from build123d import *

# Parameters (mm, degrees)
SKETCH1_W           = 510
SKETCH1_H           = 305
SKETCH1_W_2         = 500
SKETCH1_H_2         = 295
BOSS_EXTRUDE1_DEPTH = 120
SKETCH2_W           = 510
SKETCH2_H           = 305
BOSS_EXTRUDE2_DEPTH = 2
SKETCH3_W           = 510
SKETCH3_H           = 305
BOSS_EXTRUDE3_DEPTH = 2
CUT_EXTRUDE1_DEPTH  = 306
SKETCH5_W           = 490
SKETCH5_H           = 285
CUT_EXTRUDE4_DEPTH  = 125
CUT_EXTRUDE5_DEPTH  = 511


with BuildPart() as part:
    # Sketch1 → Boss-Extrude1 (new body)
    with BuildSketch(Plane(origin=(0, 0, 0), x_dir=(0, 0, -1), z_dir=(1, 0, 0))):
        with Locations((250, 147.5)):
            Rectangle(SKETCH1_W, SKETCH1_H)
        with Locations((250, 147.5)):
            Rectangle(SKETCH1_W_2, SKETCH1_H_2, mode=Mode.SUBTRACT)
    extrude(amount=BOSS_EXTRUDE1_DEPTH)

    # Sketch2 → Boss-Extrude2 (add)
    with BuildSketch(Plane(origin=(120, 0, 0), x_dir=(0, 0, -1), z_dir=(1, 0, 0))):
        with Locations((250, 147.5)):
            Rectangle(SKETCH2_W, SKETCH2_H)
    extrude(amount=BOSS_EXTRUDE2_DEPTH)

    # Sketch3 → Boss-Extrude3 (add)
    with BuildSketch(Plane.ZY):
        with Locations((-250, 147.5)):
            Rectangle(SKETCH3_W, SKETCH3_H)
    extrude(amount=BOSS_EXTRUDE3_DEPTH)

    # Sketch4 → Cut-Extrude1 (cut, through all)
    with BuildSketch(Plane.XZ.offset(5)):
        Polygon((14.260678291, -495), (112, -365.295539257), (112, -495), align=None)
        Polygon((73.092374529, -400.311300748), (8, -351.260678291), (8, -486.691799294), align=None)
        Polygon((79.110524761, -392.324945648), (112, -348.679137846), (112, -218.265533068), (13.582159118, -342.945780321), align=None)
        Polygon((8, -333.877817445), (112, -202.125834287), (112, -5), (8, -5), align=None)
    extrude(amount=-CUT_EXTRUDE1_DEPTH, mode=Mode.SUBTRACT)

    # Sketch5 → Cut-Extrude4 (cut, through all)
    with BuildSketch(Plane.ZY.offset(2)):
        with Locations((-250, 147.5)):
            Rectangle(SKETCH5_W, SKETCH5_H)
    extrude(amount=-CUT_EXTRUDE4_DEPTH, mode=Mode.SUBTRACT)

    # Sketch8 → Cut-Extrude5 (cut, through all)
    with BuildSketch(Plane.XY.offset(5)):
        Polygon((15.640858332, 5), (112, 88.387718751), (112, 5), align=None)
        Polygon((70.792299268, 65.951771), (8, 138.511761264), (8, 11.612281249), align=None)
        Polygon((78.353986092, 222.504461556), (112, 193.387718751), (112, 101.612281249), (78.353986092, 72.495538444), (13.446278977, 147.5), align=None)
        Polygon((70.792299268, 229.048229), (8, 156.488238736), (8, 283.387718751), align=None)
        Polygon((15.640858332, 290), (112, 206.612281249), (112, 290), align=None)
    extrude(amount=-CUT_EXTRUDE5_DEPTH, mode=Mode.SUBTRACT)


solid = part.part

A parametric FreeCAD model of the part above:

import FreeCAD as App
import Part
import Sketcher

V = App.Vector
Q = App.Units.Quantity


def add_polygon(sketch, points):
    """Adds a closed chain of lines whose ends are joined by coincident constraints."""
    first, n = sketch.GeometryCount, len(points)
    for a, b in zip(points, points[1:] + points[:1]):
        sketch.addGeometry(Part.LineSegment(App.Vector(*a, 0), App.Vector(*b, 0)), False)
    for i in range(n):
        sketch.addConstraint(Sketcher.Constraint("Coincident", first + i, 2, first + (i + 1) % n, 1))

doc = App.newDocument("Part")
body = doc.addObject("PartDesign::Body", "Body")

sketch1 = body.newObject("Sketcher::SketchObject", "Sketch")
sketch1.AttachmentSupport = (doc.getObject("YZ_Plane"), [""])
sketch1.MapMode = "FlatFace"
add_polygon(sketch1, [(300, 5), (-5, 5), (-5, -505), (300, -505)])
add_polygon(sketch1, [(0, -500), (0, 0), (295, 0), (295, -500)])
sketch1.addConstraint([
    Sketcher.Constraint("Horizontal", 0),
    Sketcher.Constraint("Vertical", 1),
    Sketcher.Constraint("Horizontal", 2),
    Sketcher.Constraint("Vertical", 3),
    Sketcher.Constraint("Vertical", 4),
    Sketcher.Constraint("Horizontal", 5),
    Sketcher.Constraint("Vertical", 6),
    Sketcher.Constraint("Horizontal", 7),
    Sketcher.Constraint("Coincident", 4, 2, -1, 1),
    Sketcher.Constraint("DistanceX", 0, 2, 0, 1, Q("305 mm")),
    Sketcher.Constraint("DistanceX", 5, 1, 5, 2, Q("295 mm")),
    Sketcher.Constraint("DistanceY", 1, 2, 1, 1, Q("510 mm")),
    Sketcher.Constraint("DistanceY", 4, 1, 4, 2, Q("500 mm")),
    Sketcher.Constraint("DistanceX", 0, 2, -1, 1, Q("5 mm")),
    Sketcher.Constraint("DistanceY", -1, 1, 0, 2, Q("5 mm")),
])
pad1 = body.newObject("PartDesign::Pad", "Pad")
pad1.Profile = sketch1
pad1.Length = 120

sketch2 = body.newObject("Sketcher::SketchObject", "Sketch001")
sketch2.AttachmentSupport = (doc.getObject("YZ_Plane"), [""])
sketch2.MapMode = "FlatFace"
sketch2.AttachmentOffset = App.Placement(V(0, 0, 120), App.Rotation())
add_polygon(sketch2, [(300, 5), (-5, 5), (-5, -505), (300, -505)])
sketch2.addConstraint([
    Sketcher.Constraint("Horizontal", 0),
    Sketcher.Constraint("Vertical", 1),
    Sketcher.Constraint("Horizontal", 2),
    Sketcher.Constraint("Vertical", 3),
    Sketcher.Constraint("DistanceX", 0, 2, 0, 1, Q("305 mm")),
    Sketcher.Constraint("DistanceY", 1, 2, 1, 1, Q("510 mm")),
    Sketcher.Constraint("DistanceX", 0, 2, -1, 1, Q("5 mm")),
    Sketcher.Constraint("DistanceY", -1, 1, 0, 2, Q("5 mm")),
])
pad2 = body.newObject("PartDesign::Pad", "Pad001")
pad2.Profile = sketch2
pad2.Length = 2

sketch3 = body.newObject("Sketcher::SketchObject", "Sketch002")
sketch3.AttachmentSupport = (doc.getObject("YZ_Plane"), [""])
sketch3.MapMode = "FlatFace"
add_polygon(sketch3, [(300, -505), (-5, -505), (-5, 5), (300, 5)])
sketch3.addConstraint([
    Sketcher.Constraint("Horizontal", 0),
    Sketcher.Constraint("Vertical", 1),
    Sketcher.Constraint("Horizontal", 2),
    Sketcher.Constraint("Vertical", 3),
    Sketcher.Constraint("DistanceX", 0, 2, 0, 1, Q("305 mm")),
    Sketcher.Constraint("DistanceY", 1, 1, 1, 2, Q("510 mm")),
    Sketcher.Constraint("DistanceX", 0, 2, -1, 1, Q("5 mm")),
    Sketcher.Constraint("DistanceY", 0, 2, -1, 1, Q("505 mm")),
])
pad3 = body.newObject("PartDesign::Pad", "Pad002")
pad3.Profile = sketch3
pad3.Length = 2
pad3.Reversed = True

sketch4 = body.newObject("Sketcher::SketchObject", "Sketch003")
sketch4.AttachmentSupport = (doc.getObject("XZ_Plane"), [""])
sketch4.MapMode = "FlatFace"
sketch4.AttachmentOffset = App.Placement(V(0, 0, 5), App.Rotation())
add_polygon(sketch4, [(112, -365), (14, -495), (112, -495)])
add_polygon(sketch4, [(73, -400), (8, -351), (8, -487)])
add_polygon(sketch4, [(79, -392), (112, -349), (112, -218), (14, -343)])
add_polygon(sketch4, [(8, -334), (112, -202), (112, -5), (8, -5)])
sketch4.addConstraint([
    Sketcher.Constraint("Horizontal", 1),
    Sketcher.Constraint("Vertical", 2),
    Sketcher.Constraint("Vertical", 4),
    Sketcher.Constraint("Vertical", 7),
    Sketcher.Constraint("Vertical", 11),
    Sketcher.Constraint("Horizontal", 12),
    Sketcher.Constraint("Vertical", 13),
    Sketcher.Constraint("Perpendicular", 0, 3),
    Sketcher.Constraint("Perpendicular", 3, 5),
    Sketcher.Constraint("Parallel", 5, 6),
    Sketcher.Constraint("Perpendicular", 6, 9),
    Sketcher.Constraint("Parallel", 8, 10),
    Sketcher.Constraint("Vertical", 2, 2, 6, 2),
    Sketcher.Constraint("Vertical", 7, 2, 10, 2),
    Sketcher.Constraint("Vertical", 4, 2, 12, 2),
    Sketcher.Constraint("DistanceX", 12, 2, 12, 1, Q("104 mm")),
    Sketcher.Constraint("Angle", 0, Q("-127 deg")),
    Sketcher.Constraint("DistanceY", 0, 2, -1, 1, Q("495 mm")),
    Sketcher.Constraint("DistanceX", -1, 1, 1, 2, Q("112 mm")),
    Sketcher.Constraint("DistanceY", 11, 2, -1, 1, Q("5 mm")),
    Sketcher.Constraint("DistanceX", 1, 1, 1, 2, Q("97.739322 mm")),
    Sketcher.Constraint("DistanceY", 4, 2, 4, 1, Q("135.431121 mm")),
    Sketcher.Constraint("DistanceY", 4, 2, -1, 1, Q("486.691799 mm")),
    Sketcher.Constraint("DistanceY", 2, 2, 6, 2, Q("16.616401 mm")),
    Sketcher.Constraint("DistanceY", 7, 2, 10, 2, Q("16.139699 mm")),
    Sketcher.Constraint("Distance", 8, Q("158.843431 mm")),
    Sketcher.Constraint("DistanceY", 7, 1, 7, 2, Q("130.413605 mm")),
    Sketcher.Constraint("DistanceY", 13, 2, 13, 1, Q("328.877817 mm")),
])
pocket1 = body.newObject("PartDesign::Pocket", "Pocket")
pocket1.Profile = sketch4
pocket1.Type = "ThroughAll"

sketch5 = body.newObject("Sketcher::SketchObject", "Sketch004")
sketch5.AttachmentSupport = (doc.getObject("YZ_Plane"), [""])
sketch5.MapMode = "FlatFace"
sketch5.AttachmentOffset = App.Placement(V(0, 0, -2), App.Rotation())
add_polygon(sketch5, [(290, -495), (5, -495), (5, -5), (290, -5)])
sketch5.addConstraint([
    Sketcher.Constraint("Horizontal", 0),
    Sketcher.Constraint("Vertical", 1),
    Sketcher.Constraint("Horizontal", 2),
    Sketcher.Constraint("Vertical", 3),
    Sketcher.Constraint("DistanceX", 0, 2, 0, 1, Q("285 mm")),
    Sketcher.Constraint("DistanceY", 1, 1, 1, 2, Q("490 mm")),
    Sketcher.Constraint("DistanceX", -1, 1, 0, 2, Q("5 mm")),
    Sketcher.Constraint("DistanceY", 0, 2, -1, 1, Q("495 mm")),
])
pocket2 = body.newObject("PartDesign::Pocket", "Pocket001")
pocket2.Profile = sketch5
pocket2.Type = "ThroughAll"
pocket2.Reversed = True

sketch6 = body.newObject("Sketcher::SketchObject", "Sketch005")
sketch6.AttachmentSupport = (doc.getObject("XY_Plane"), [""])
sketch6.MapMode = "FlatFace"
sketch6.AttachmentOffset = App.Placement(V(0, 0, 5), App.Rotation())
add_polygon(sketch6, [(112, 88), (16, 5), (112, 5)])
add_polygon(sketch6, [(71, 66), (8, 139), (8, 12)])
add_polygon(sketch6, [(112, 193), (78, 223), (13, 148), (78, 72), (112, 102)])
add_polygon(sketch6, [(8, 156), (71, 229), (8, 283)])
add_polygon(sketch6, [(16, 290), (112, 207), (112, 290)])
sketch6.addConstraint([
    Sketcher.Constraint("Horizontal", 1),
    Sketcher.Constraint("Vertical", 2),
    Sketcher.Constraint("Vertical", 4),
    Sketcher.Constraint("Vertical", 10),
    Sketcher.Constraint("Vertical", 13),
    Sketcher.Constraint("Vertical", 15),
    Sketcher.Constraint("Horizontal", 16),
    Sketcher.Constraint("Perpendicular", 0, 3),
    Sketcher.Constraint("Perpendicular", 3, 5),
    Sketcher.Constraint("Perpendicular", 6, 7),
    Sketcher.Constraint("Perpendicular", 5, 8),
    Sketcher.Constraint("Perpendicular", 8, 9),
    Sketcher.Constraint("Parallel", 7, 11),
    Sketcher.Constraint("Perpendicular", 11, 12),
    Sketcher.Constraint("Parallel", 12, 14),
    Sketcher.Constraint("Vertical", 6, 2, 8, 2),
    Sketcher.Constraint("Vertical", 2, 2, 9, 2),
    Sketcher.Constraint("Vertical", 5, 2, 11, 2),
    Sketcher.Constraint("Vertical", 4, 2, 12, 2),
    Sketcher.Constraint("Vertical", 10, 2, 14, 2),
    Sketcher.Constraint("Vertical", 0, 2, 16, 2),
    Sketcher.Constraint("Equal", 4, 13),
    Sketcher.Constraint("DistanceY", -1, 1, 0, 2, Q("5 mm")),
    Sketcher.Constraint("DistanceX", -1, 1, 1, 2, Q("112 mm")),
    Sketcher.Constraint("DistanceX", -1, 1, 3, 2, Q("8 mm")),
    Sketcher.Constraint("DistanceY", -1, 1, 15, 2, Q("290 mm")),
    Sketcher.Constraint("DistanceY", 2, 2, 10, 2, Q("105 mm")),
    Sketcher.Constraint("DistanceY", 10, 2, 12, 2, Q("90 mm")),
    Sketcher.Constraint("DistanceY", 9, 2, 14, 2, Q("105 mm")),
    Sketcher.Constraint("DistanceX", 1, 1, 1, 2, Q("96.359142 mm")),
    Sketcher.Constraint("DistanceY", 2, 1, 2, 2, Q("83.387719 mm")),
    Sketcher.Constraint("DistanceY", 4, 2, 4, 1, Q("126.89948 mm")),
    Sketcher.Constraint("DistanceY", 3, 2, 6, 2, Q("83.9927 mm")),
    Sketcher.Constraint("DistanceY", 8, 2, 13, 2, Q("83.9927 mm")),
])
pocket3 = body.newObject("PartDesign::Pocket", "Pocket002")
pocket3.Profile = sketch6
pocket3.Type = "ThroughAll"

doc.recompute()
